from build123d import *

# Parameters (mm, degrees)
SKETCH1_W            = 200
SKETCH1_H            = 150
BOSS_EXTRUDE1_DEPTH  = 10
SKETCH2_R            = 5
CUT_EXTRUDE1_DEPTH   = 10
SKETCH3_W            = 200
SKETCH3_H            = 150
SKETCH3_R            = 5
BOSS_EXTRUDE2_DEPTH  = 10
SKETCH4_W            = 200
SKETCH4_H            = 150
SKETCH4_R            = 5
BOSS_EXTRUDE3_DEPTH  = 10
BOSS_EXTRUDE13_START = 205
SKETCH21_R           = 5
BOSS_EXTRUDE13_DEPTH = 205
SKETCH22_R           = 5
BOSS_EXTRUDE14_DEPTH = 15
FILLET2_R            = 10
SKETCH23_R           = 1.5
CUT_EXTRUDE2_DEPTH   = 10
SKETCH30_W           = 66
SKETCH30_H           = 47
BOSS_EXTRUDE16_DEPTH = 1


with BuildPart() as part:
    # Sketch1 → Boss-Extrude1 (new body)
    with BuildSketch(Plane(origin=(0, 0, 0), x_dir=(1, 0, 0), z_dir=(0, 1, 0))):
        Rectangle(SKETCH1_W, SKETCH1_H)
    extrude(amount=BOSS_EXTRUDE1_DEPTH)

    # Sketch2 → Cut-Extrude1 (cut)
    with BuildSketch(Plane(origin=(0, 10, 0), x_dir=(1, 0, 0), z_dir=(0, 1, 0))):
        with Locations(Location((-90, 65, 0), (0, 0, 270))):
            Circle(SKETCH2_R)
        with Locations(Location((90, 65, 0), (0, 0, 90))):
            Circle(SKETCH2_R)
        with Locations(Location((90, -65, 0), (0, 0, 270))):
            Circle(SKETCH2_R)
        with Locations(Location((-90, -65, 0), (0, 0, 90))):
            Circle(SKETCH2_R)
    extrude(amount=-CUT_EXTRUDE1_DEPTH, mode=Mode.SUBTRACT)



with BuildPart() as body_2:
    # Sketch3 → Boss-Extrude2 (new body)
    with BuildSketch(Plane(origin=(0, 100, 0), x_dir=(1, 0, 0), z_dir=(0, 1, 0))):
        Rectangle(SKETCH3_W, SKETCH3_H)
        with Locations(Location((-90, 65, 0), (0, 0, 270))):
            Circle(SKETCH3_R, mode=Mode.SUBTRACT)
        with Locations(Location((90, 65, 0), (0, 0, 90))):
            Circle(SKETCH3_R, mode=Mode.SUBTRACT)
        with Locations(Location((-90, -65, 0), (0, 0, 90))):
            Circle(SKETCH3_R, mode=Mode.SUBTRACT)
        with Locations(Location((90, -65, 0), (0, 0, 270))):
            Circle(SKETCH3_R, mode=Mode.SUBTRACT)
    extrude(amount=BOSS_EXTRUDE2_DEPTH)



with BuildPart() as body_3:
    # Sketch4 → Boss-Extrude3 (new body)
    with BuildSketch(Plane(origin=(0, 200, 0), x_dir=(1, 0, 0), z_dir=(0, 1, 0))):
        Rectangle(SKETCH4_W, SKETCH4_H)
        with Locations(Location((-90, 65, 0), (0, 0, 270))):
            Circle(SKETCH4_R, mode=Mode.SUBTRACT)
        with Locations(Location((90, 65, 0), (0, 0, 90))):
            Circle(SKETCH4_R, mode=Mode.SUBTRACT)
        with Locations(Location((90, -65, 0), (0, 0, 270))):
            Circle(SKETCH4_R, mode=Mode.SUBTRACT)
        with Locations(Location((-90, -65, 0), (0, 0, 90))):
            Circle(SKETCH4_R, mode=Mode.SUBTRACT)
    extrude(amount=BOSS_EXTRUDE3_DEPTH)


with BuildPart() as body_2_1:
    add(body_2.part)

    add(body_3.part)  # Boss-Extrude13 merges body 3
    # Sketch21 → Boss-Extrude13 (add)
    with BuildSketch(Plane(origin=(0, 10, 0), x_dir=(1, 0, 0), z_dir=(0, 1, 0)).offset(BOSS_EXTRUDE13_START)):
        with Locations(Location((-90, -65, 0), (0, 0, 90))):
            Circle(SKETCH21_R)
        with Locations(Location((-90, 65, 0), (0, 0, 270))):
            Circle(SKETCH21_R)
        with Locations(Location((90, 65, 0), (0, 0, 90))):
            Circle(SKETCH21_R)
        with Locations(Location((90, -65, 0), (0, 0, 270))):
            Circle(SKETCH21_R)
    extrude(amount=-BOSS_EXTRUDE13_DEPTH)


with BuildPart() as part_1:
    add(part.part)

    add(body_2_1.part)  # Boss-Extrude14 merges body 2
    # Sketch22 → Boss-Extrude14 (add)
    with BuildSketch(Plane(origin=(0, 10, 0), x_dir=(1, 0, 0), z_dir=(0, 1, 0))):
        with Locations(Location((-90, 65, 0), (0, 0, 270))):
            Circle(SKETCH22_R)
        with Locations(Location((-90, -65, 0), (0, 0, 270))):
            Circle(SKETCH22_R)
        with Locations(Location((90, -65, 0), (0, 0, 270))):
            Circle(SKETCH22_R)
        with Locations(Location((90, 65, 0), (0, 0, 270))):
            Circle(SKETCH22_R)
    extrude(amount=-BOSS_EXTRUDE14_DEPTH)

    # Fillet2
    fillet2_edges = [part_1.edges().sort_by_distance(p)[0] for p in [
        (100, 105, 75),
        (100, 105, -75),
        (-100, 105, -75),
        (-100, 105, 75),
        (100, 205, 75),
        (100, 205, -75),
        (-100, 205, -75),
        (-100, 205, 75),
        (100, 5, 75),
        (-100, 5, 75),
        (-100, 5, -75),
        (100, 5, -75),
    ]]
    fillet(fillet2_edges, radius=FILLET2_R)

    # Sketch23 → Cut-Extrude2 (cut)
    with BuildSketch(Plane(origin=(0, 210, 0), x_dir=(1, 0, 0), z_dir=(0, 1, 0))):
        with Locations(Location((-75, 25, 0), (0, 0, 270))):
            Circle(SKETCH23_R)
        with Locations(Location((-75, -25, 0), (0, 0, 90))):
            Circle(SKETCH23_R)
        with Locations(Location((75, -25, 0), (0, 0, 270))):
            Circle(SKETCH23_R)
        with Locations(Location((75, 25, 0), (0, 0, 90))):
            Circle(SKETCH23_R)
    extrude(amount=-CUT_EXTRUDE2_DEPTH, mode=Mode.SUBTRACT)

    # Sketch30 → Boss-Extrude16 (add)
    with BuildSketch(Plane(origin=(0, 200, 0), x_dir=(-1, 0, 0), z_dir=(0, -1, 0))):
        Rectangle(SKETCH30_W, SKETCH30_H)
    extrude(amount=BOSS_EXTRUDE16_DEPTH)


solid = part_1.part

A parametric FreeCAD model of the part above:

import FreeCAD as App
import Part
import Sketcher


def edges_at(feature, points):
    """Names of the edges that pass closest to the given points."""
    edges = feature.Shape.Edges
    near = lambda p: min(range(len(edges)), key=lambda i: edges[i].distToShape(Part.Vertex(*p))[0])
    return sorted({f"Edge{near(p) + 1}" for p in points})

doc = App.newDocument("Part")
body = doc.addObject("PartDesign::Body", "Body")

# Sketch on XZ plane
sketch1 = body.newObject("Sketcher::SketchObject", "Sketch")
sketch1.AttachmentSupport = (doc.getObject("XZ_Plane"), [""])
sketch1.MapMode = "FlatFace"
sketch1.addGeometry([
    Part.LineSegment(App.Vector(-100, -75, 0), App.Vector(-100, 75, 0)),
    Part.LineSegment(App.Vector(-100, 75, 0), App.Vector(100, 75, 0)),
    Part.LineSegment(App.Vector(100, 75, 0), App.Vector(100, -75, 0)),
    Part.LineSegment(App.Vector(100, -75, 0), App.Vector(-100, -75, 0)),
], False)
sketch1.addConstraint([
    Sketcher.Constraint("Coincident", 0, 2, 1, 1),
    Sketcher.Constraint("Coincident", 1, 2, 2, 1),
    Sketcher.Constraint("Coincident", 2, 2, 3, 1),
    Sketcher.Constraint("Coincident", 3, 2, 0, 1),
    Sketcher.Constraint("Vertical", 0),
    Sketcher.Constraint("Horizontal", 1),
    Sketcher.Constraint("Vertical", 2),
    Sketcher.Constraint("Horizontal", 3),
    Sketcher.Constraint("Symmetric", 0, 2, 2, 2, -1, 1),
    Sketcher.Constraint("DistanceX", 1, 1, 1, 2, 200.0),
    Sketcher.Constraint("DistanceY", 0, 1, 0, 2, 150.0),
])
pad1 = body.newObject("PartDesign::Pad", "Pad")
pad1.Profile = sketch1
pad1.Length = 10
pad1.Reversed = True

# Sketch on XZ plane
sketch2 = body.newObject("Sketcher::SketchObject", "Sketch001")
sketch2.AttachmentSupport = (doc.getObject("XZ_Plane"), [""])
sketch2.MapMode = "FlatFace"
sketch2.AttachmentOffset = App.Placement(App.Vector(0, 0, -10), App.Rotation())
sketch2.addGeometry([
    Part.Circle(App.Vector(-90, -65, 0), App.Vector(0, 0, 1), 5),
    Part.Circle(App.Vector(90, -65, 0), App.Vector(0, 0, 1), 5),
    Part.Circle(App.Vector(90, 65, 0), App.Vector(0, 0, 1), 5),
    Part.Circle(App.Vector(-90, 65, 0), App.Vector(0, 0, 1), 5),
], False)
sketch2.addConstraint([
    Sketcher.Constraint("Equal", 0, 1),
    Sketcher.Constraint("Equal", 1, 2),
    Sketcher.Constraint("Equal", 2, 3),
    Sketcher.Constraint("Symmetric", 0, 3, 2, 3, -1, 1),
    Sketcher.Constraint("Symmetric", 1, 3, 3, 3, -1, 1),
    Sketcher.Constraint("Symmetric", 0, 3, 1, 3, -2),
    Sketcher.Constraint("Diameter", 0, 10.0),
    Sketcher.Constraint("DistanceX", 0, 3, -1, 1, 90.0),
    Sketcher.Constraint("DistanceY", 0, 3, -1, 1, 65.0),
])
pocket1 = body.newObject("PartDesign::Pocket", "Pocket")
pocket1.Profile = sketch2
pocket1.Length = 10
pocket1.Reversed = True
body2 = doc.addObject("PartDesign::Body", "Body001")

# Sketch on XZ plane
sketch3 = body2.newObject("Sketcher::SketchObject", "Sketch002")
sketch3.AttachmentSupport = (doc.getObject("XZ_Plane001"), [""])
sketch3.MapMode = "FlatFace"
sketch3.AttachmentOffset = App.Placement(App.Vector(0, 0, -100), App.Rotation())
sketch3.addGeometry([
    Part.LineSegment(App.Vector(-100, -75, 0), App.Vector(-100, 75, 0)),  # 0
    Part.LineSegment(App.Vector(-100, 75, 0), App.Vector(100, 75, 0)),  # 1
    Part.LineSegment(App.Vector(100, 75, 0), App.Vector(100, -75, 0)),  # 2
    Part.LineSegment(App.Vector(100, -75, 0), App.Vector(-100, -75, 0)),  # 3
    Part.Circle(App.Vector(-90, 65, 0), App.Vector(0, 0, 1), 5),  # 4
    Part.Circle(App.Vector(90, 65, 0), App.Vector(0, 0, 1), 5),  # 5
    Part.Circle(App.Vector(-90, -65, 0), App.Vector(0, 0, 1), 5),  # 6
    Part.Circle(App.Vector(90, -65, 0), App.Vector(0, 0, 1), 5),  # 7
], False)
sketch3.addConstraint([
    Sketcher.Constraint("Coincident", 0, 2, 1, 1),
    Sketcher.Constraint("Coincident", 1, 2, 2, 1),
    Sketcher.Constraint("Coincident", 2, 2, 3, 1),
    Sketcher.Constraint("Coincident", 3, 2, 0, 1),
    Sketcher.Constraint("Vertical", 0),
    Sketcher.Constraint("Horizontal", 1),
    Sketcher.Constraint("Vertical", 2),
    Sketcher.Constraint("Horizontal", 3),
    Sketcher.Constraint("Equal", 4, 5),
    Sketcher.Constraint("Equal", 5, 6),
    Sketcher.Constraint("Equal", 6, 7),
    Sketcher.Constraint("Symmetric", 5, 3, 6, 3, -1, 1),
    Sketcher.Constraint("Symmetric", 4, 3, 7, 3, -1, 1),
    Sketcher.Constraint("Symmetric", 0, 2, 2, 2, -1, 1),
    Sketcher.Constraint("Symmetric", 4, 3, 5, 3, -2),
    Sketcher.Constraint("Diameter", 4, 10.0),
    Sketcher.Constraint("DistanceX", 1, 1, 1, 2, 200.0),
    Sketcher.Constraint("DistanceY", 0, 1, 0, 2, 150.0),
    Sketcher.Constraint("DistanceX", 4, 3, -1, 1, 90.0),
    Sketcher.Constraint("DistanceY", -1, 1, 4, 3, 65.0),
])
pad2 = body2.newObject("PartDesign::Pad", "Pad001")
pad2.Profile = sketch3
pad2.Length = 10
pad2.Reversed = True
body3 = doc.addObject("PartDesign::Body", "Body002")

# Sketch on XZ plane
sketch4 = body3.newObject("Sketcher::SketchObject", "Sketch003")
sketch4.AttachmentSupport = (doc.getObject("XZ_Plane002"), [""])
sketch4.MapMode = "FlatFace"
sketch4.AttachmentOffset = App.Placement(App.Vector(0, 0, -200), App.Rotation())
sketch4.addGeometry([
    Part.LineSegment(App.Vector(-100, -75, 0), App.Vector(-100, 75, 0)),  # 0
    Part.LineSegment(App.Vector(-100, 75, 0), App.Vector(100, 75, 0)),  # 1
    Part.LineSegment(App.Vector(100, 75, 0), App.Vector(100, -75, 0)),  # 2
    Part.LineSegment(App.Vector(100, -75, 0), App.Vector(-100, -75, 0)),  # 3
    Part.Circle(App.Vector(-90, 65, 0), App.Vector(0, 0, 1), 5),  # 4
    Part.Circle(App.Vector(90, 65, 0), App.Vector(0, 0, 1), 5),  # 5
    Part.Circle(App.Vector(-90, -65, 0), App.Vector(0, 0, 1), 5),  # 6
    Part.Circle(App.Vector(90, -65, 0), App.Vector(0, 0, 1), 5),  # 7
], False)
sketch4.addConstraint([
    Sketcher.Constraint("Coincident", 0, 2, 1, 1),
    Sketcher.Constraint("Coincident", 1, 2, 2, 1),
    Sketcher.Constraint("Coincident", 2, 2, 3, 1),
    Sketcher.Constraint("Coincident", 3, 2, 0, 1),
    Sketcher.Constraint("Vertical", 0),
    Sketcher.Constraint("Horizontal", 1),
    Sketcher.Constraint("Vertical", 2),
    Sketcher.Constraint("Horizontal", 3),
    Sketcher.Constraint("Equal", 4, 5),
    Sketcher.Constraint("Equal", 5, 6),
    Sketcher.Constraint("Equal", 6, 7),
    Sketcher.Constraint("Symmetric", 5, 3, 6, 3, -1, 1),
    Sketcher.Constraint("Symmetric", 4, 3, 7, 3, -1, 1),
    Sketcher.Constraint("Symmetric", 0, 2, 2, 2, -1, 1),
    Sketcher.Constraint("Symmetric", 4, 3, 5, 3, -2),
    Sketcher.Constraint("Diameter", 4, 10.0),
    Sketcher.Constraint("DistanceX", 1, 1, 1, 2, 200.0),
    Sketcher.Constraint("DistanceY", 0, 1, 0, 2, 150.0),
    Sketcher.Constraint("DistanceX", 4, 3, -1, 1, 90.0),
    Sketcher.Constraint("DistanceY", -1, 1, 4, 3, 65.0),
])
pad3 = body3.newObject("PartDesign::Pad", "Pad002")
pad3.Profile = sketch4
pad3.Length = 10
pad3.Reversed = True
body2.AllowCompound = True
doc.recompute()

boolean = body2.newObject("PartDesign::Boolean", "Boolean")
boolean.Type = "Fuse"
boolean.addObjects([body3])

# Sketch on XZ plane
sketch5 = body2.newObject("Sketcher::SketchObject", "Sketch004")
sketch5.AttachmentSupport = (doc.getObject("XZ_Plane001"), [""])
sketch5.MapMode = "FlatFace"
sketch5.AttachmentOffset = App.Placement(App.Vector(0, 0, -215), App.Rotation())
sketch5.addGeometry([
    Part.Circle(App.Vector(-90, 65, 0), App.Vector(0, 0, 1), 5),
    Part.Circle(App.Vector(-90, -65, 0), App.Vector(0, 0, 1), 5),
    Part.Circle(App.Vector(90, -65, 0), App.Vector(0, 0, 1), 5),
    Part.Circle(App.Vector(90, 65, 0), App.Vector(0, 0, 1), 5),
], False)
sketch5.addConstraint([
    Sketcher.Constraint("Equal", 0, 1),
    Sketcher.Constraint("Equal", 1, 2),
    Sketcher.Constraint("Equal", 2, 3),
    Sketcher.Constraint("Symmetric", 0, 3, 2, 3, -1, 1),
    Sketcher.Constraint("Symmetric", 1, 3, 3, 3, -1, 1),
    Sketcher.Constraint("Symmetric", 1, 3, 2, 3, -2),
    Sketcher.Constraint("Diameter", 0, 10.0),
    Sketcher.Constraint("DistanceX", 0, 3, -1, 1, 90.0),
    Sketcher.Constraint("DistanceY", -1, 1, 0, 3, 65.0),
])
pad4 = body2.newObject("PartDesign::Pad", "Pad003")
pad4.Profile = sketch5
pad4.Length = 205
body.AllowCompound = True
doc.recompute()

boolean2 = body.newObject("PartDesign::Boolean", "Boolean001")
boolean2.Type = "Fuse"
boolean2.addObjects([body2])

# Sketch on XZ plane
sketch6 = body.newObject("Sketcher::SketchObject", "Sketch005")
sketch6.AttachmentSupport = (doc.getObject("XZ_Plane"), [""])
sketch6.MapMode = "FlatFace"
sketch6.AttachmentOffset = App.Placement(App.Vector(0, 0, -10), App.Rotation())
sketch6.addGeometry([
    Part.Circle(App.Vector(-90, -65, 0), App.Vector(0, 0, 1), 5),
    Part.Circle(App.Vector(-90, 65, 0), App.Vector(0, 0, 1), 5),
    Part.Circle(App.Vector(90, 65, 0), App.Vector(0, 0, 1), 5),
    Part.Circle(App.Vector(90, -65, 0), App.Vector(0, 0, 1), 5),
], False)
sketch6.addConstraint([
    Sketcher.Constraint("Equal", 0, 1),
    Sketcher.Constraint("Equal", 1, 2),
    Sketcher.Constraint("Equal", 2, 3),
    Sketcher.Constraint("Symmetric", 0, 3, 2, 3, -1, 1),
    Sketcher.Constraint("Symmetric", 1, 3, 3, 3, -1, 1),
    Sketcher.Constraint("Symmetric", 1, 3, 2, 3, -2),
    Sketcher.Constraint("Diameter", 0, 10.0),
    Sketcher.Constraint("DistanceX", 0, 3, -1, 1, 90.0),
    Sketcher.Constraint("DistanceY", 0, 3, -1, 1, 65.0),
])
pad5 = body.newObject("PartDesign::Pad", "Pad004")
pad5.Profile = sketch6
pad5.Length = 15
doc.recompute()

fillet = body.newObject("PartDesign::Fillet", "Fillet")
fillet.Base = (pad5, edges_at(pad5, [
    (100, 105, 75),
    (100, 105, -75),
    (-100, 105, -75),
    (-100, 105, 75),
    (100, 205, 75),
    (100, 205, -75),
    (-100, 205, -75),
    (-100, 205, 75),
    (100, 5, 75),
    (-100, 5, 75),
    (-100, 5, -75),
    (100, 5, -75),
]))
fillet.Radius = 10

# Sketch on XZ plane
sketch7 = body.newObject("Sketcher::SketchObject", "Sketch006")
sketch7.AttachmentSupport = (doc.getObject("XZ_Plane"), [""])
sketch7.MapMode = "FlatFace"
sketch7.AttachmentOffset = App.Placement(App.Vector(0, 0, -210), App.Rotation())
sketch7.addGeometry([
    Part.Circle(App.Vector(-75, -25, 0), App.Vector(0, 0, 1), 1.5),
    Part.Circle(App.Vector(-75, 25, 0), App.Vector(0, 0, 1), 1.5),
    Part.Circle(App.Vector(75, 25, 0), App.Vector(0, 0, 1), 1.5),
    Part.Circle(App.Vector(75, -25, 0), App.Vector(0, 0, 1), 1.5),
], False)
sketch7.addConstraint([
    Sketcher.Constraint("Equal", 0, 1),
    Sketcher.Constraint("Equal", 1, 2),
    Sketcher.Constraint("Equal", 2, 3),
    Sketcher.Constraint("Symmetric", 0, 3, 2, 3, -1, 1),
    Sketcher.Constraint("Symmetric", 1, 3, 3, 3, -1, 1),
    Sketcher.Constraint("Symmetric", 1, 3, 2, 3, -2),
    Sketcher.Constraint("Diameter", 0, 3.0),
    Sketcher.Constraint("DistanceX", 0, 3, -1, 1, 75.0),
    Sketcher.Constraint("DistanceY", 0, 3, -1, 1, 25.0),
])
pocket2 = body.newObject("PartDesign::Pocket", "Pocket001")
pocket2.Profile = sketch7
pocket2.Length = 10
pocket2.Reversed = True

# Sketch on XZ plane
sketch8 = body.newObject("Sketcher::SketchObject", "Sketch007")
sketch8.AttachmentSupport = (doc.getObject("XZ_Plane"), [""])
sketch8.MapMode = "FlatFace"
sketch8.AttachmentOffset = App.Placement(App.Vector(0, 0, -200), App.Rotation())
sketch8.addGeometry([
    Part.LineSegment(App.Vector(33, -24, 0), App.Vector(33, 24, 0)),
    Part.LineSegment(App.Vector(33, 24, 0), App.Vector(-33, 24, 0)),
    Part.LineSegment(App.Vector(-33, 24, 0), App.Vector(-33, -24, 0)),
    Part.LineSegment(App.Vector(-33, -24, 0), App.Vector(33, -24, 0)),
], False)
sketch8.addConstraint([
    Sketcher.Constraint("Coincident", 0, 2, 1, 1),
    Sketcher.Constraint("Coincident", 1, 2, 2, 1),
    Sketcher.Constraint("Coincident", 2, 2, 3, 1),
    Sketcher.Constraint("Coincident", 3, 2, 0, 1),
    Sketcher.Constraint("Vertical", 0),
    Sketcher.Constraint("Horizontal", 1),
    Sketcher.Constraint("Vertical", 2),
    Sketcher.Constraint("Horizontal", 3),
    Sketcher.Constraint("Symmetric", 0, 2, 2, 2, -1, 1),
    Sketcher.Constraint("DistanceX", 1, 2, 1, 1, 66.0),
    Sketcher.Constraint("DistanceY", 0, 1, 0, 2, 47.0),
])
pad6 = body.newObject("PartDesign::Pad", "Pad005")
pad6.Profile = sketch8
pad6.Length = 1

doc.recompute()
